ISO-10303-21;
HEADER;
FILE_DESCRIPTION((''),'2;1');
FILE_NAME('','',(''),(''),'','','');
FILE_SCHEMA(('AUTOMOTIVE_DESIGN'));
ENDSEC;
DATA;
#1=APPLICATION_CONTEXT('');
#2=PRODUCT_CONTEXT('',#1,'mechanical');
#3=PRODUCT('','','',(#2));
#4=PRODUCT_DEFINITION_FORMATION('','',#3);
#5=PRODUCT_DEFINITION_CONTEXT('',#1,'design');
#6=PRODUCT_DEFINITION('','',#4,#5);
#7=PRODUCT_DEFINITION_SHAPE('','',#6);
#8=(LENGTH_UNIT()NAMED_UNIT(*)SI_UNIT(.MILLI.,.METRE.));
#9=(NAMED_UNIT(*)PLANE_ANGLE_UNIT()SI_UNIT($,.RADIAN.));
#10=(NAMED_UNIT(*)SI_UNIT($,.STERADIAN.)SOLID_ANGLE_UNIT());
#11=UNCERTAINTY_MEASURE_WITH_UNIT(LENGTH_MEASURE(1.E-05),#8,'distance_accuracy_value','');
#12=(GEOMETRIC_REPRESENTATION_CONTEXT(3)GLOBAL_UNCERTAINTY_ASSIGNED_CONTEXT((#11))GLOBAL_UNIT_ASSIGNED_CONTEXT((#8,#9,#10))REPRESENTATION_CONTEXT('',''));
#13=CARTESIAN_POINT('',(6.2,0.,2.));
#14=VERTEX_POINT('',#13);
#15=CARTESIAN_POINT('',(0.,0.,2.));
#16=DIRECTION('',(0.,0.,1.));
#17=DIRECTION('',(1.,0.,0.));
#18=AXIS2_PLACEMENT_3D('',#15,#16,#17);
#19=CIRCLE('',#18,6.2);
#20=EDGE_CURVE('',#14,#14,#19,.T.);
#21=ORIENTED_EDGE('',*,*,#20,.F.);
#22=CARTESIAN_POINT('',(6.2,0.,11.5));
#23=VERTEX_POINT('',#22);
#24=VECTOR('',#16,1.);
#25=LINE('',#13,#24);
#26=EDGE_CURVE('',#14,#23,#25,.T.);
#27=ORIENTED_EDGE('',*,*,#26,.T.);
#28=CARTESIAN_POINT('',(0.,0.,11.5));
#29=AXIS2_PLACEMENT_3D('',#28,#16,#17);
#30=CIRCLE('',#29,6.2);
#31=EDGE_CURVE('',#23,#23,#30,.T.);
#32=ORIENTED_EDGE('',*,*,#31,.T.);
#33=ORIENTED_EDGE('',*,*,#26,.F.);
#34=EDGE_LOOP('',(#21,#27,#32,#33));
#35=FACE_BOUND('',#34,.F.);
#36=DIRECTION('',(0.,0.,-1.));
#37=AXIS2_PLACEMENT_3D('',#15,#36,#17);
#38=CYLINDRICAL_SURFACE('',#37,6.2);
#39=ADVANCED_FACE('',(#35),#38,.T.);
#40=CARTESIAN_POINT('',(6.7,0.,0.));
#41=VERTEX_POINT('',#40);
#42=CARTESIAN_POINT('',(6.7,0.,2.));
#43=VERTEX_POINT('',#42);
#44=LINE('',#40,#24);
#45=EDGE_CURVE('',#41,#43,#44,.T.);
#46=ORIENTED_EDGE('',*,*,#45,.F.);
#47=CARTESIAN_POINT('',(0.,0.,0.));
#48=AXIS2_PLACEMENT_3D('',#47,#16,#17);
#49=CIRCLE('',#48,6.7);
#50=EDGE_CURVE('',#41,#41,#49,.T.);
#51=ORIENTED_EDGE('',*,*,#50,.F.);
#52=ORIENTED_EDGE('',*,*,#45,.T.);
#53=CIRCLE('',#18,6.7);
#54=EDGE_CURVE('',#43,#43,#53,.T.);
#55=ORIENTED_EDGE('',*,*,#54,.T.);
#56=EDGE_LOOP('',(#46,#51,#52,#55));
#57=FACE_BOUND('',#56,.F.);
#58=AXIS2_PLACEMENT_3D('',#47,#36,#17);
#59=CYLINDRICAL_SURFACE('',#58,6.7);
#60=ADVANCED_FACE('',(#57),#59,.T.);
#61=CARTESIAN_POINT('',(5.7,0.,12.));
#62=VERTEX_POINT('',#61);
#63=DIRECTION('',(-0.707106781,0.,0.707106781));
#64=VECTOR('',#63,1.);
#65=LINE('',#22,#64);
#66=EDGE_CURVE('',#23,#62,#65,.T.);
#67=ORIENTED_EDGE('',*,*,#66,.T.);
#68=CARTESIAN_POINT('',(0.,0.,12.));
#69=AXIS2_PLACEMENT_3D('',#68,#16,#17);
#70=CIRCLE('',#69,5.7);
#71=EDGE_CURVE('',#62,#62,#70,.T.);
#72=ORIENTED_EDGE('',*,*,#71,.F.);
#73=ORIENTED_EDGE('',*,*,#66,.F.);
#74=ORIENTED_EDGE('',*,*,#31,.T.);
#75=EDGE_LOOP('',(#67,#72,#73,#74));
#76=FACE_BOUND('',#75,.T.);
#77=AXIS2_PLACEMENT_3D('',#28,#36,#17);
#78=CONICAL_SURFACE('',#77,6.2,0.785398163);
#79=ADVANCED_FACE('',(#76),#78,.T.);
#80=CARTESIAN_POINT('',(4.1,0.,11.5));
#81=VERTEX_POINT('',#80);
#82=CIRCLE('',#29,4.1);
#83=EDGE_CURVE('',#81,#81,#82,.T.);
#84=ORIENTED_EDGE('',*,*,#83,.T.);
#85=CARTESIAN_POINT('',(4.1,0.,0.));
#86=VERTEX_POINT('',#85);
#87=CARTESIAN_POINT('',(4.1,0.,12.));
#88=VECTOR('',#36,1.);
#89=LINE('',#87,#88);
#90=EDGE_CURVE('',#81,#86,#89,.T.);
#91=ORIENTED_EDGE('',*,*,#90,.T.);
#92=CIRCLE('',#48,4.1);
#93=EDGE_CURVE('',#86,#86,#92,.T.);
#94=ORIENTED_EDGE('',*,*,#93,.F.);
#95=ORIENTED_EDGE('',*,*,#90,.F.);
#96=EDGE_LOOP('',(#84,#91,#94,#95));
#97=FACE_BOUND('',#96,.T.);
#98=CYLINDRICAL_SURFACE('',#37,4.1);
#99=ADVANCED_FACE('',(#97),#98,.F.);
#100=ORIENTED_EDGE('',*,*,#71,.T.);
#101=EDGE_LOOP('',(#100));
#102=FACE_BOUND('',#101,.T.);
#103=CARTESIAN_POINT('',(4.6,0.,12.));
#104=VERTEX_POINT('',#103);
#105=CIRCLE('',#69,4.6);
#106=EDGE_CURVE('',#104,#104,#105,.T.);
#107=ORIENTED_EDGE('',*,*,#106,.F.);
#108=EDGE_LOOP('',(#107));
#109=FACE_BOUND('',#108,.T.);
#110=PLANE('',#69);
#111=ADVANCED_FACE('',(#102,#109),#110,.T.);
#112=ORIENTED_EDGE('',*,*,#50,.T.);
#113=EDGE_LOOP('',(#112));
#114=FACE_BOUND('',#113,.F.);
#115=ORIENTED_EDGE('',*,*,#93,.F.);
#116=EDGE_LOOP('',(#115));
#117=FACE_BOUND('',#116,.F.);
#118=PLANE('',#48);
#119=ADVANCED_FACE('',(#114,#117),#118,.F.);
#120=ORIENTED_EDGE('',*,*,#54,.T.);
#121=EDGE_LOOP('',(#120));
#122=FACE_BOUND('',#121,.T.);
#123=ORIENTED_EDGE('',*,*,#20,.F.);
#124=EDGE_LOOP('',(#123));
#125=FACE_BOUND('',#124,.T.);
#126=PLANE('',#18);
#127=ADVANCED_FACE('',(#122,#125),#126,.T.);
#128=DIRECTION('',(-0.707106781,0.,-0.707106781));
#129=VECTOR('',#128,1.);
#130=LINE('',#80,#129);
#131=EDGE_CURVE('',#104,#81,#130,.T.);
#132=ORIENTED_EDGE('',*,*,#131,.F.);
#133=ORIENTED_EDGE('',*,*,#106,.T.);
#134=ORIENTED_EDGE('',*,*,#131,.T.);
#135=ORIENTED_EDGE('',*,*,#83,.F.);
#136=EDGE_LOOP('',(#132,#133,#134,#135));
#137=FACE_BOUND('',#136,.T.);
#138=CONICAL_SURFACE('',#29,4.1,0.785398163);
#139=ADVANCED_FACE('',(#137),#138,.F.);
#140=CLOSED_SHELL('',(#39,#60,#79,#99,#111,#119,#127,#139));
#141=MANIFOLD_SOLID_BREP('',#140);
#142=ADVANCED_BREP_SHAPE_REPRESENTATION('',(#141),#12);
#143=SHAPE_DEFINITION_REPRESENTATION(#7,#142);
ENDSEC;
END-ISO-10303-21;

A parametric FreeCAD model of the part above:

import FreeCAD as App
import Part
import Sketcher

V = App.Vector


def edges_at(feature, points):
    """Names of the edges that pass closest to the given points."""
    edges = feature.Shape.Edges
    near = lambda p: min(range(len(edges)), key=lambda i: edges[i].distToShape(Part.Vertex(*p))[0])
    return sorted({f"Edge{near(p) + 1}" for p in points})

doc = App.newDocument("Part")
body = doc.addObject("PartDesign::Body", "Body")

# Sketch on XY plane
sketch1 = body.newObject("Sketcher::SketchObject", "Sketch")
sketch1.AttachmentSupport = (doc.getObject("XY_Plane"), [""])
sketch1.MapMode = "FlatFace"
sketch1.addGeometry(Part.Circle(V(0, 0, 0), V(0, 0, 1), 6.7), False)
sketch1.addGeometry(Part.Circle(V(0, 0, 0), V(0, 0, 1), 4.1), False)
sketch1.addConstraint(Sketcher.Constraint("Coincident", 0, 3, -1, 1))
sketch1.addConstraint(Sketcher.Constraint("Coincident", 1, 3, -1, 1))
sketch1.addConstraint(Sketcher.Constraint("Diameter", 0, 13.4))
sketch1.addConstraint(Sketcher.Constraint("Diameter", 1, 8.2))
pad1 = body.newObject("PartDesign::Pad", "Pad")
pad1.Profile = sketch1
pad1.Length = 2

# Sketch on XY plane
sketch2 = body.newObject("Sketcher::SketchObject", "Sketch001")
sketch2.AttachmentSupport = (doc.getObject("XY_Plane"), [""])
sketch2.MapMode = "FlatFace"
sketch2.AttachmentOffset = App.Placement(V(0, 0, 2), App.Rotation())
sketch2.addGeometry(Part.Circle(V(0, 0, 0), V(0, 0, 1), 6.2), False)
sketch2.addGeometry(Part.Circle(V(0, 0, 0), V(0, 0, 1), 4.1), False)
sketch2.addConstraint(Sketcher.Constraint("Coincident", 0, 3, -1, 1))
sketch2.addConstraint(Sketcher.Constraint("Coincident", 1, 3, -1, 1))
sketch2.addConstraint(Sketcher.Constraint("Diameter", 0, 12.4))
sketch2.addConstraint(Sketcher.Constraint("Diameter", 1, 8.2))
pad2 = body.newObject("PartDesign::Pad", "Pad001")
pad2.Profile = sketch2
pad2.Length = 10
doc.recompute()

chamfer = body.newObject("PartDesign::Chamfer", "Chamfer")
chamfer.Base = (pad2, edges_at(pad2, [(-4.1, 0, 12), (-6.2, 0, 12)]))
chamfer.Size = 0.5

doc.recompute()
